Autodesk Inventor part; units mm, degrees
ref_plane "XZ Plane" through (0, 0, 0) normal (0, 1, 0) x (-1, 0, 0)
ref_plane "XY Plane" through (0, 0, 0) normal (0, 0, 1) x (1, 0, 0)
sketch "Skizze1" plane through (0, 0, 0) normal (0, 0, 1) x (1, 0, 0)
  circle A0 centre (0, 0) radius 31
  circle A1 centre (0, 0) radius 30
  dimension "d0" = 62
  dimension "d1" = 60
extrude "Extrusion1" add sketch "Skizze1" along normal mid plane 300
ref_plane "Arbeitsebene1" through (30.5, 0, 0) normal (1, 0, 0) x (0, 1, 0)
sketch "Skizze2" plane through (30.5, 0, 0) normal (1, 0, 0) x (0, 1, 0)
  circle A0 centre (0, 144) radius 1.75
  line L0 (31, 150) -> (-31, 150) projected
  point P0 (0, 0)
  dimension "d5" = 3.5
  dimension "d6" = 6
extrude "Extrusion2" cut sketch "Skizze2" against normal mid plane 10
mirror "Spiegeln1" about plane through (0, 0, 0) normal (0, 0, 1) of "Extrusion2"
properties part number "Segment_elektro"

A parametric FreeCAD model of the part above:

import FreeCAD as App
import Part
import Sketcher

V = App.Vector
Q = App.Units.Quantity

doc = App.newDocument("Part")
body = doc.addObject("PartDesign::Body", "Body")

sketch1 = doc.addObject("Sketcher::SketchObject", "Sketch")
body.addObject(sketch1)
sketch1.AttachmentSupport = (doc.XY_Plane, [""])
sketch1.MapMode = "FlatFace"
sketch1.addGeometry(Part.Circle(V(0, 0, 0), V(0, 0, 1), 31), False)
sketch1.addGeometry(Part.Circle(V(0, 0, 0), V(0, 0, 1), 30), False)
sketch1.addConstraint(Sketcher.Constraint("Coincident", 0, 3, -1, 1))
sketch1.addConstraint(Sketcher.Constraint("Coincident", 1, 3, -1, 1))
sketch1.addConstraint(Sketcher.Constraint("Diameter", 0, Q("62 mm")))
sketch1.addConstraint(Sketcher.Constraint("Diameter", 1, Q("60 mm")))
pad1 = doc.addObject("PartDesign::Pad", "Pad")
body.addObject(pad1)
pad1.Profile = sketch1
pad1.Length = 300
pad1.Midplane = True

sketch2 = doc.addObject("Sketcher::SketchObject", "Sketch001")
body.addObject(sketch2)
sketch2.AttachmentSupport = (doc.YZ_Plane, [""])
sketch2.MapMode = "FlatFace"
sketch2.AttachmentOffset = App.Placement(V(0, 0, 30.5), App.Rotation())
sketch2.addGeometry(Part.Circle(V(0, 144, 0), V(0, 0, 1), 1.8), False)
sketch2.addConstraint(Sketcher.Constraint("PointOnObject", 0, 3, -2))
sketch2.addConstraint(Sketcher.Constraint("Diameter", 0, Q("3.5 mm")))
sketch2.addConstraint(Sketcher.Constraint("DistanceY", -1, 1, 0, 3, Q("144 mm")))
pocket1 = doc.addObject("PartDesign::Pocket", "Pocket")
body.addObject(pocket1)
pocket1.Profile = sketch2
pocket1.Length = 10
pocket1.Midplane = True
doc.recompute()

mirrored = doc.addObject("PartDesign::Mirrored", "Mirrored")
body.addObject(mirrored)
mirrored.Originals = [pocket1]
mirrored.MirrorPlane = (doc.XY_Plane, [""])
body.Tip = mirrored

doc.recompute()
